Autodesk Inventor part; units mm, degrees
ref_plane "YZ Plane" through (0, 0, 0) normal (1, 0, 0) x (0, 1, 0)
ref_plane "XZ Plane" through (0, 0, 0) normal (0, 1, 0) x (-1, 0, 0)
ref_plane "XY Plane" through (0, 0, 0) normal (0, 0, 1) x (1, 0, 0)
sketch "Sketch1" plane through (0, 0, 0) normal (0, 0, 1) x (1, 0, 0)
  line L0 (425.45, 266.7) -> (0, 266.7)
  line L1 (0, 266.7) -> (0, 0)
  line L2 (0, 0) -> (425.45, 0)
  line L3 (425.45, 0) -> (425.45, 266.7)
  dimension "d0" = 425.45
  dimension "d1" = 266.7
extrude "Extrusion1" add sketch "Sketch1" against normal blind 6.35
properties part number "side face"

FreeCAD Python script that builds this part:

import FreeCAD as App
import Part
import Sketcher

V = App.Vector
Q = App.Units.Quantity

doc = App.newDocument("Part")
body = doc.addObject("PartDesign::Body", "Body")

# Sketch on XY plane
sketch1 = body.newObject("Sketcher::SketchObject", "Sketch")
sketch1.AttachmentSupport = (doc.getObject("XY_Plane"), [""])
sketch1.MapMode = "FlatFace"
sketch1.addGeometry(Part.LineSegment(V(425, 0, 0), V(425, 267, 0)), False)
sketch1.addGeometry(Part.LineSegment(V(425, 267, 0), V(0, 267, 0)), False)
sketch1.addGeometry(Part.LineSegment(V(0, 267, 0), V(0, 0, 0)), False)
sketch1.addGeometry(Part.LineSegment(V(0, 0, 0), V(425, 0, 0)), False)
sketch1.addConstraint(Sketcher.Constraint("Coincident", 0, 2, 1, 1))
sketch1.addConstraint(Sketcher.Constraint("Coincident", 1, 2, 2, 1))
sketch1.addConstraint(Sketcher.Constraint("Coincident", 2, 2, 3, 1))
sketch1.addConstraint(Sketcher.Constraint("Coincident", 3, 2, 0, 1))
sketch1.addConstraint(Sketcher.Constraint("Vertical", 0))
sketch1.addConstraint(Sketcher.Constraint("Horizontal", 1))
sketch1.addConstraint(Sketcher.Constraint("Vertical", 2))
sketch1.addConstraint(Sketcher.Constraint("Horizontal", 3))
sketch1.addConstraint(Sketcher.Constraint("Coincident", 2, 2, -1, 1))
sketch1.addConstraint(Sketcher.Constraint("DistanceY", 0, 1, 0, 2, Q("10.5 in")))
sketch1.addConstraint(Sketcher.Constraint("DistanceX", 1, 2, 1, 1, Q("16.75 in")))
pad1 = body.newObject("PartDesign::Pad", "Pad")
pad1.Profile = sketch1
pad1.Length = Q("0.25 in")
pad1.Reversed = True

doc.recompute()
